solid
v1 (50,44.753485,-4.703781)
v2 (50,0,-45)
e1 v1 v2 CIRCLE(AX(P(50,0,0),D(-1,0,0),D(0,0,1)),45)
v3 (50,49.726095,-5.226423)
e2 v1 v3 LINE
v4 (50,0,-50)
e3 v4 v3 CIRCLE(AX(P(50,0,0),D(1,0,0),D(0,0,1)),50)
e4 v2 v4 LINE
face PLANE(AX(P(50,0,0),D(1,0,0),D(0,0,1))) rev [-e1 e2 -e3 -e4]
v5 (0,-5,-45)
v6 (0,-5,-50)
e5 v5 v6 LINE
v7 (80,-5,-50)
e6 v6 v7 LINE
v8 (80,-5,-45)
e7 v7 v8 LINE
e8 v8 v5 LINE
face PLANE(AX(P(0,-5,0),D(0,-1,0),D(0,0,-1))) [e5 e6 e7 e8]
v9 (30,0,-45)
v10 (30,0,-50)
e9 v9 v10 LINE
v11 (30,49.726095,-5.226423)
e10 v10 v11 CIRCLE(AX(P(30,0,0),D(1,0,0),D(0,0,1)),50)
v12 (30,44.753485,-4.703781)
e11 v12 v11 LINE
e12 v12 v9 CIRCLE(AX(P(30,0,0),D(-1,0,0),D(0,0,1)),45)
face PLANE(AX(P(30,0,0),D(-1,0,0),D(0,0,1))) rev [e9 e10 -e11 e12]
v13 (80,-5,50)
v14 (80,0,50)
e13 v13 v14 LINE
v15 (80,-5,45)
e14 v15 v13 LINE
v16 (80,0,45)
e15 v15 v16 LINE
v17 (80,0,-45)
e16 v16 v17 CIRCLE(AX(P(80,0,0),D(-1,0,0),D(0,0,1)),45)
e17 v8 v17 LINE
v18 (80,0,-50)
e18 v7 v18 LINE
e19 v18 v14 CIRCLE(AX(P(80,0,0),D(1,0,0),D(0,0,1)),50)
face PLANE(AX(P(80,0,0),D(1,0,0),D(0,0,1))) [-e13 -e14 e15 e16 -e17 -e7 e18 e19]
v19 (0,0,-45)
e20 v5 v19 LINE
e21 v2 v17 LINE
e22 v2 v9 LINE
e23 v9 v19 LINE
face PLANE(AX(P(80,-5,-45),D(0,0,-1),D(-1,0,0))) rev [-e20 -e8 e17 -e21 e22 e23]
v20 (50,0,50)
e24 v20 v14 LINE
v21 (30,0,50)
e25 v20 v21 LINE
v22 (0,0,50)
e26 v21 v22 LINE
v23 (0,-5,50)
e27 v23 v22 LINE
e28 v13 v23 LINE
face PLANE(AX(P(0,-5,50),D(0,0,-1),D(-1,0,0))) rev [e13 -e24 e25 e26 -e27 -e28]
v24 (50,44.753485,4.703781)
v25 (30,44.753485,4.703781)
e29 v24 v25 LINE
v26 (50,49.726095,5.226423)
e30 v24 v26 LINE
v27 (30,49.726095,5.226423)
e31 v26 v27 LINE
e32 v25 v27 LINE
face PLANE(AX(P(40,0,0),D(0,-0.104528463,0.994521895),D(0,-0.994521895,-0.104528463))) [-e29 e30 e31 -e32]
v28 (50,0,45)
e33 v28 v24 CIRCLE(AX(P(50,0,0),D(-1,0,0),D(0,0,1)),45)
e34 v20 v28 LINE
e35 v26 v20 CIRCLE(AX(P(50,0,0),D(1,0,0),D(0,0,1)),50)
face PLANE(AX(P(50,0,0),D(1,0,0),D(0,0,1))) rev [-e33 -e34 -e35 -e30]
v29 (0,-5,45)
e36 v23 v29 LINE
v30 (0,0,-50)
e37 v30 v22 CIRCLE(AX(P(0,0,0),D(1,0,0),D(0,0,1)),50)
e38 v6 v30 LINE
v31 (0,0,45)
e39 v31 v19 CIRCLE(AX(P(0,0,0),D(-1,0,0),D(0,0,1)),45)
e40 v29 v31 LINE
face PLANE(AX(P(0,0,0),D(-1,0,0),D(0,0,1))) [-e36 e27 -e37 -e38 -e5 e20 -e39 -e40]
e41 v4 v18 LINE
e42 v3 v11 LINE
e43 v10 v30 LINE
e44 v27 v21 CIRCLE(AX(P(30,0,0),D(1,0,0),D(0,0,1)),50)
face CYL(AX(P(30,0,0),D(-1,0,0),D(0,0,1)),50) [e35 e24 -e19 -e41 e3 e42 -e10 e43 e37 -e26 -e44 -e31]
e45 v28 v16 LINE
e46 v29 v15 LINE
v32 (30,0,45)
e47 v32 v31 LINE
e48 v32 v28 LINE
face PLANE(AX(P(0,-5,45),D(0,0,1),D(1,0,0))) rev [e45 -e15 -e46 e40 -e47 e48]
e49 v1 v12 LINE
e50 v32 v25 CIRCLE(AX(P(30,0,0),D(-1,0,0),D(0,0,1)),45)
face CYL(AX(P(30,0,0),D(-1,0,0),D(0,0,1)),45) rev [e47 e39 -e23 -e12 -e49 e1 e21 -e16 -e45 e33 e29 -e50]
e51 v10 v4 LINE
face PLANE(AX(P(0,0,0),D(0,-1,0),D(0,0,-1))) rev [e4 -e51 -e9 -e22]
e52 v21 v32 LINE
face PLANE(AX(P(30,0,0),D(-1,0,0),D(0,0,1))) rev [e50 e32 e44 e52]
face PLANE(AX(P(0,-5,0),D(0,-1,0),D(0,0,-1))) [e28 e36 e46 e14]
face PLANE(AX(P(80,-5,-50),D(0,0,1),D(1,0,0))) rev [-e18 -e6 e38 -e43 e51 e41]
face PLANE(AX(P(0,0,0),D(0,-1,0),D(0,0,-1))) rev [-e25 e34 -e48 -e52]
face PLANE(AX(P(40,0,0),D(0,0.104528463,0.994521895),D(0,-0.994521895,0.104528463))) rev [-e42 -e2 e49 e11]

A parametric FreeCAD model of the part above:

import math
import FreeCAD as App
import Part
import Sketcher
Q = App.Units.Quantity

doc = App.newDocument("Part")
params = doc.addObject("Spreadsheet::Sheet", "Params")
for row, (alias, value) in enumerate([
    ("sketch1_radius", "45 mm"),
    ("sketch1_radius2", "50 mm"),
    ("pad1_length", "30 mm"),
    ("sketch2_radius", "45 mm"),
    ("sketch2_radius2", "50 mm"),
    ("pad2_length", "10 mm"),
    ("sketch3_width", "80 mm"),
    ("sketch3_height", "5 mm"),
    ("pad3_length", "5 mm"),
], start=1):
    params.set(f"A{row}", alias)
    params.set(f"B{row}", "=" + value)
    params.setAlias(f"B{row}", alias)

body = doc.addObject("PartDesign::Body", "Body")

sketch1 = doc.addObject("Sketcher::SketchObject", "Sketch")
body.addObject(sketch1)
sketch1.AttachmentSupport = (doc.YZ_Plane, [""])
sketch1.MapMode = "FlatFace"
sketch1.addGeometry(Part.LineSegment(App.Vector(0, 50, 0), App.Vector(0, 45, 0)), False)
sketch1.addGeometry(Part.ArcOfCircle(Part.Circle(App.Vector(0, 0, 0), App.Vector(0, 0, 1), 45), math.radians(-90), math.radians(90)), False)
sketch1.addGeometry(Part.LineSegment(App.Vector(0, -45, 0), App.Vector(0, -50, 0)), False)
sketch1.addGeometry(Part.ArcOfCircle(Part.Circle(App.Vector(0, 0, 0), App.Vector(0, 0, 1), 50), math.radians(-90), math.radians(90)), False)
sketch1.addConstraint(Sketcher.Constraint("Coincident", 0, 2, 1, 2))
sketch1.addConstraint(Sketcher.Constraint("Coincident", 1, 1, 2, 1))
sketch1.addConstraint(Sketcher.Constraint("Coincident", 2, 2, 3, 1))
sketch1.addConstraint(Sketcher.Constraint("Coincident", 3, 2, 0, 1))
sketch1.addConstraint(Sketcher.Constraint("Vertical", 0))
sketch1.addConstraint(Sketcher.Constraint("Vertical", 2))
sketch1.addConstraint(Sketcher.Constraint("Coincident", 1, 3, -1, 1))
sketch1.addConstraint(Sketcher.Constraint("Coincident", 3, 3, -1, 1))
sketch1.addConstraint(Sketcher.Constraint("PointOnObject", 0, 2, -2))
sketch1.addConstraint(Sketcher.Constraint("PointOnObject", 1, 1, -2))
sketch1.addConstraint(Sketcher.Constraint("Radius", 1, Q("45 mm")))
sketch1.addConstraint(Sketcher.Constraint("Radius", 3, Q("50 mm")))
sketch1.setExpression("Constraints[10]", "Params.sketch1_radius")
sketch1.setExpression("Constraints[11]", "Params.sketch1_radius2")
pad1 = doc.addObject("PartDesign::Pad", "Pad")
body.addObject(pad1)
pad1.Profile = sketch1
pad1.setExpression("Length", "Params.pad1_length")

sketch2 = doc.addObject("Sketcher::SketchObject", "Sketch001")
body.addObject(sketch2)
sketch2.AttachmentSupport = (doc.YZ_Plane, [""])
sketch2.MapMode = "FlatFace"
sketch2.AttachmentOffset = App.Placement(App.Vector(0, 0, 30), App.Rotation())
sketch2.addGeometry(Part.LineSegment(App.Vector(49.726095, 5.226423, 0), App.Vector(44.753485, 4.703781, 0)), False)
sketch2.addGeometry(Part.ArcOfCircle(Part.Circle(App.Vector(0, 0, 0), App.Vector(0, 0, 1), 45), math.radians(0), math.radians(6)), False)
sketch2.addGeometry(Part.ArcOfCircle(Part.Circle(App.Vector(0, 0, 0), App.Vector(0, 0, 1), 45), math.radians(-6), math.radians(0)), False)
sketch2.addGeometry(Part.LineSegment(App.Vector(44.753485, -4.703781, 0), App.Vector(49.726095, -5.226423, 0)), False)
sketch2.addGeometry(Part.ArcOfCircle(Part.Circle(App.Vector(0, 0, 0), App.Vector(0, 0, 1), 50), math.radians(-6), math.radians(0)), False)
sketch2.addGeometry(Part.ArcOfCircle(Part.Circle(App.Vector(0, 0, 0), App.Vector(0, 0, 1), 50), math.radians(0), math.radians(6)), False)
sketch2.addConstraint(Sketcher.Constraint("Coincident", 0, 2, 1, 2))
sketch2.addConstraint(Sketcher.Constraint("Tangent", 1, 1, 2, 2))
sketch2.addConstraint(Sketcher.Constraint("Coincident", 2, 1, 3, 1))
sketch2.addConstraint(Sketcher.Constraint("Coincident", 3, 2, 4, 1))
sketch2.addConstraint(Sketcher.Constraint("Tangent", 4, 2, 5, 1))
sketch2.addConstraint(Sketcher.Constraint("Coincident", 5, 2, 0, 1))
sketch2.addConstraint(Sketcher.Constraint("Coincident", 1, 3, -1, 1))
sketch2.addConstraint(Sketcher.Constraint("Coincident", 4, 3, -1, 1))
sketch2.addConstraint(Sketcher.Constraint("Equal", 1, 2))
sketch2.addConstraint(Sketcher.Constraint("Equal", 4, 5))
sketch2.addConstraint(Sketcher.Constraint("PointOnObject", 1, 1, -1))
sketch2.addConstraint(Sketcher.Constraint("PointOnObject", 4, 2, -1))
sketch2.addConstraint(Sketcher.Constraint("Vertical", 0, 2, 2, 1))
sketch2.addConstraint(Sketcher.Constraint("Vertical", 3, 2, 5, 2))
sketch2.addConstraint(Sketcher.Constraint("Radius", 1, Q("45 mm")))
sketch2.addConstraint(Sketcher.Constraint("Radius", 4, Q("50 mm")))
sketch2.addConstraint(Sketcher.Constraint("Angle", 0, Q("-174 deg")))
sketch2.addConstraint(Sketcher.Constraint("DistanceY", -1, 1, 0, 2, Q("4.703781 mm")))
sketch2.setExpression("Constraints[14]", "Params.sketch2_radius")
sketch2.setExpression("Constraints[15]", "Params.sketch2_radius2")
pad2 = doc.addObject("PartDesign::Pad", "Pad001")
body.addObject(pad2)
pad2.Profile = sketch2
pad2.setExpression("Length", "Params.pad2_length")
body2 = doc.addObject("PartDesign::Body", "Body001")
doc.recompute()

body2.BaseFeature = body
doc.recompute()

mirroring = doc.addObject("Part::Mirroring", "Mirroring")
mirroring.Source = body
mirroring.Base = App.Vector(40, 0, 0)
mirroring.Normal = App.Vector(1, 0, 0)
body3 = doc.addObject("PartDesign::Body", "Body002")
body3.BaseFeature = mirroring
boolean = doc.addObject("PartDesign::Boolean", "Boolean")
body2.addObject(boolean)
boolean.Type = "Fuse"
boolean.addObjects([body3])
doc.recompute()

sketch3 = doc.addObject("Sketcher::SketchObject", "Sketch002")
body2.addObject(sketch3)
sketch3.AttachmentSupport = (doc.getObject("XZ_Plane001"), [""])
sketch3.MapMode = "FlatFace"
sketch3.addGeometry(Part.LineSegment(App.Vector(0, 50, 0), App.Vector(0, 45, 0)), False)
sketch3.addGeometry(Part.LineSegment(App.Vector(0, 45, 0), App.Vector(80, 45, 0)), False)
sketch3.addGeometry(Part.LineSegment(App.Vector(80, 45, 0), App.Vector(80, 50, 0)), False)
sketch3.addGeometry(Part.LineSegment(App.Vector(80, 50, 0), App.Vector(0, 50, 0)), False)
sketch3.addGeometry(Part.LineSegment(App.Vector(0, -45, 0), App.Vector(0, -50, 0)), False)
sketch3.addGeometry(Part.LineSegment(App.Vector(0, -50, 0), App.Vector(80, -50, 0)), False)
sketch3.addGeometry(Part.LineSegment(App.Vector(80, -50, 0), App.Vector(80, -45, 0)), False)
sketch3.addGeometry(Part.LineSegment(App.Vector(80, -45, 0), App.Vector(0, -45, 0)), False)
sketch3.addConstraint(Sketcher.Constraint("Coincident", 0, 2, 1, 1))
sketch3.addConstraint(Sketcher.Constraint("Coincident", 1, 2, 2, 1))
sketch3.addConstraint(Sketcher.Constraint("Coincident", 2, 2, 3, 1))
sketch3.addConstraint(Sketcher.Constraint("Coincident", 3, 2, 0, 1))
sketch3.addConstraint(Sketcher.Constraint("Coincident", 4, 2, 5, 1))
sketch3.addConstraint(Sketcher.Constraint("Coincident", 5, 2, 6, 1))
sketch3.addConstraint(Sketcher.Constraint("Coincident", 6, 2, 7, 1))
sketch3.addConstraint(Sketcher.Constraint("Coincident", 7, 2, 4, 1))
sketch3.addConstraint(Sketcher.Constraint("Vertical", 0))
sketch3.addConstraint(Sketcher.Constraint("Horizontal", 1))
sketch3.addConstraint(Sketcher.Constraint("Vertical", 2))
sketch3.addConstraint(Sketcher.Constraint("Horizontal", 3))
sketch3.addConstraint(Sketcher.Constraint("Vertical", 4))
sketch3.addConstraint(Sketcher.Constraint("Horizontal", 5))
sketch3.addConstraint(Sketcher.Constraint("Vertical", 6))
sketch3.addConstraint(Sketcher.Constraint("Horizontal", 7))
sketch3.addConstraint(Sketcher.Constraint("Symmetric", 3, 2, 4, 2, -1, 1))
sketch3.addConstraint(Sketcher.Constraint("Symmetric", 1, 2, 6, 2, -1))
sketch3.addConstraint(Sketcher.Constraint("PointOnObject", 0, 2, -2))
sketch3.addConstraint(Sketcher.Constraint("DistanceX", 1, 1, 1, 2, Q("80 mm")))
sketch3.addConstraint(Sketcher.Constraint("DistanceY", 0, 2, 0, 1, Q("5 mm")))
sketch3.addConstraint(Sketcher.Constraint("DistanceY", -1, 1, 0, 2, Q("45 mm")))
sketch3.setExpression("Constraints[19]", "Params.sketch3_width")
sketch3.setExpression("Constraints[20]", "Params.sketch3_height")
pad3 = doc.addObject("PartDesign::Pad", "Pad002")
body2.addObject(pad3)
pad3.Profile = sketch3
pad3.setExpression("Length", "Params.pad3_length")
mirroring.Visibility = False

doc.recompute()
